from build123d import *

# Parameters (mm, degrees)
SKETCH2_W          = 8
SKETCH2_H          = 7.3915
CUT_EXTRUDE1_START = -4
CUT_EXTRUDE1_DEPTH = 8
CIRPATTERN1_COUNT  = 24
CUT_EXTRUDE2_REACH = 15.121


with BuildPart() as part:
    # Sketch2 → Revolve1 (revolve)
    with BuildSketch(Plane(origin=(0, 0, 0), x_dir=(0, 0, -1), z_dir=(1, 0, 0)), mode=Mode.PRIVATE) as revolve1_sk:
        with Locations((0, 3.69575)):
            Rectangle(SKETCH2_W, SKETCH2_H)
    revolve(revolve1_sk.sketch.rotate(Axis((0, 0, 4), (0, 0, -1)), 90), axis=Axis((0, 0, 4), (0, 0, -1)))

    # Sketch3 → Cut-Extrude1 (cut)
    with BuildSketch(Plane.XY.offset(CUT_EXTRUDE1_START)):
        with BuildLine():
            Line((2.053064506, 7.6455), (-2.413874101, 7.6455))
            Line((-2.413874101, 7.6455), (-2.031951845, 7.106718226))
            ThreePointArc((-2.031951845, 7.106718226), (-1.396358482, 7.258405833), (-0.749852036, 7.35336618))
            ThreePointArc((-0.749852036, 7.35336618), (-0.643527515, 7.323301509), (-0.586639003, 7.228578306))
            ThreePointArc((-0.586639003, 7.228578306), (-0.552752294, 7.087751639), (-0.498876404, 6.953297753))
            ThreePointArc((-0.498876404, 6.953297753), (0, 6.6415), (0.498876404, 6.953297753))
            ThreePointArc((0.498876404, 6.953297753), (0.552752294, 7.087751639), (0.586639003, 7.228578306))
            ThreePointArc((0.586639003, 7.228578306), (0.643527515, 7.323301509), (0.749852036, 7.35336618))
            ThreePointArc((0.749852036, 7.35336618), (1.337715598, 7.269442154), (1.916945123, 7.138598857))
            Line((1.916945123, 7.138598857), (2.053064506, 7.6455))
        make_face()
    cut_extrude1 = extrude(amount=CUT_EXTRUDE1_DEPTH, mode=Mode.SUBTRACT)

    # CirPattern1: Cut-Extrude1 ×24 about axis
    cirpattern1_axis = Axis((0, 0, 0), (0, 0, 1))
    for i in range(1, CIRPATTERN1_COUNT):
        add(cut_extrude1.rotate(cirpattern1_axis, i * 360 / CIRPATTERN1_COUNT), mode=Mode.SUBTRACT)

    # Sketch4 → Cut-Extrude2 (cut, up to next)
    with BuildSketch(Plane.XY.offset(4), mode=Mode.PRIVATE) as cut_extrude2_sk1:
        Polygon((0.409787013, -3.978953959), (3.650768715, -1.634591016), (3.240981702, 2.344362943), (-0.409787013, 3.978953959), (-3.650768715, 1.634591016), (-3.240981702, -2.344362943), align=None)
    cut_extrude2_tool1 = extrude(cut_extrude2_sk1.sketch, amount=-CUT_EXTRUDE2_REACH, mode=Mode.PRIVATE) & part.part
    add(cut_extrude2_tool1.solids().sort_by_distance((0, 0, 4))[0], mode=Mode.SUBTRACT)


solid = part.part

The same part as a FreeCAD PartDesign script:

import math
import FreeCAD as App
import Part
import Sketcher
Q = App.Units.Quantity


def add_polygon(sketch, points):
    """Adds a closed chain of lines whose ends are joined by coincident constraints."""
    first, n = sketch.GeometryCount, len(points)
    for a, b in zip(points, points[1:] + points[:1]):
        sketch.addGeometry(Part.LineSegment(App.Vector(*a, 0), App.Vector(*b, 0)), False)
    for i in range(n):
        sketch.addConstraint(Sketcher.Constraint("Coincident", first + i, 2, first + (i + 1) % n, 1))

doc = App.newDocument("Part")
params = doc.addObject("Spreadsheet::Sheet", "Params")
for row, (alias, value) in enumerate([
    ("sketch1_height", "8 mm"),
    ("revolution_angle", "360 deg"),
    ("sketch2_radius", "1 mm"),
    ("sketch2_radius2", "0.15 mm"),
    ("pocket1_length", "8 mm"),
    ("sketch3_length", "4 mm"),
], start=1):
    params.set(f"A{row}", alias)
    params.set(f"B{row}", "=" + value)
    params.setAlias(f"B{row}", alias)

body = doc.addObject("PartDesign::Body", "Body")

# Sketch on YZ plane
sketch1 = body.newObject("Sketcher::SketchObject", "Sketch")
sketch1.AttachmentSupport = (doc.getObject("YZ_Plane"), [""])
sketch1.MapMode = "FlatFace"
add_polygon(sketch1, [(7.3915, 4), (0, 4), (0, -4), (7.3915, -4)])  # lines 0-3
sketch1.addConstraint([
    Sketcher.Constraint("Horizontal", 0),
    Sketcher.Constraint("Vertical", 1),
    Sketcher.Constraint("Horizontal", 2),
    Sketcher.Constraint("Vertical", 3),
    Sketcher.Constraint("Symmetric", 0, 2, 1, 2, -1, 1),
    Sketcher.Constraint("DistanceY", 1, 2, 1, 1, Q("8 mm")),
    Sketcher.Constraint("DistanceX", 0, 2, 0, 1, Q("7.3915 mm")),
])
sketch1.setExpression("Constraints[9]", "Params.sketch1_height")
revolution = body.newObject("PartDesign::Revolution", "Revolution")
revolution.Profile = sketch1
revolution.ReferenceAxis = (sketch1, ["V_Axis"])
revolution.setExpression("Angle", "Params.revolution_angle")

# Sketch on XY plane
sketch2 = body.newObject("Sketcher::SketchObject", "Sketch001")
sketch2.AttachmentSupport = (doc.getObject("XY_Plane"), [""])
sketch2.MapMode = "FlatFace"
sketch2.AttachmentOffset = App.Placement(App.Vector(0, 0, -4), App.Rotation())
sketch2.addGeometry([
    Part.LineSegment(App.Vector(2.053065, 7.6455, 0), App.Vector(-2.413874, 7.6455, 0)),  # 0
    Part.LineSegment(App.Vector(-2.413874, 7.6455, 0), App.Vector(-2.031952, 7.106718, 0)),  # 1
    Part.ArcOfCircle(Part.Circle(App.Vector(0, 0, 0), App.Vector(0, 0, 1), 7.3915), math.radians(95.822552), math.radians(105.956285)),  # 2
    Part.ArcOfCircle(Part.Circle(App.Vector(-0.734635, 7.20414, 0), App.Vector(0, 0, 1), 0.15), math.radians(9.376523), math.radians(95.822552)),  # 3
    Part.ArcOfCircle(Part.Circle(App.Vector(0.4, 7.3915, 0), App.Vector(0, 0, 1), 1), math.radians(-170.623477), math.radians(-154.010766)),  # 4
    Part.ArcOfCircle(Part.Circle(App.Vector(0, 7.1965, 0), App.Vector(0, 0, 1), 0.555), math.radians(-154.010767), math.radians(-25.989233)),  # 5
    Part.ArcOfCircle(Part.Circle(App.Vector(-0.4, 7.3915, 0), App.Vector(0, 0, 1), 1), math.radians(-25.989234), math.radians(-9.376523)),  # 6
    Part.ArcOfCircle(Part.Circle(App.Vector(0.734635, 7.20414, 0), App.Vector(0, 0, 1), 0.15), math.radians(84.177448), math.radians(170.623477)),  # 7
    Part.ArcOfCircle(Part.Circle(App.Vector(0, 0, 0), App.Vector(0, 0, 1), 7.3915), math.radians(74.968827), math.radians(84.177448)),  # 8
    Part.LineSegment(App.Vector(1.916945, 7.138599, 0), App.Vector(2.053065, 7.6455, 0)),  # 9
], False)
sketch2.addConstraint([
    Sketcher.Constraint("Coincident", 0, 2, 1, 1),
    Sketcher.Constraint("Coincident", 1, 2, 2, 2),
    Sketcher.Constraint("Tangent", 2, 1, 3, 2),
    Sketcher.Constraint("Tangent", 3, 1, 4, 1),
    Sketcher.Constraint("Tangent", 4, 2, 5, 1),
    Sketcher.Constraint("Tangent", 5, 2, 6, 1),
    Sketcher.Constraint("Tangent", 6, 2, 7, 2),
    Sketcher.Constraint("Tangent", 7, 1, 8, 2),
    Sketcher.Constraint("Coincident", 8, 1, 9, 1),
    Sketcher.Constraint("Coincident", 9, 2, 0, 1),
    Sketcher.Constraint("Horizontal", 0),
    Sketcher.Constraint("Coincident", 2, 3, -1, 1),
    Sketcher.Constraint("Coincident", 8, 3, -1, 1),
    Sketcher.Constraint("Equal", 4, 6),
    Sketcher.Constraint("Equal", 3, 7),
    Sketcher.Constraint("Equal", 2, 8),
    Sketcher.Constraint("Symmetric", 4, 3, 6, 3, -2),
    Sketcher.Constraint("Radius", 4, Q("1 mm")),
    Sketcher.Constraint("Radius", 3, Q("0.15 mm")),
    Sketcher.Constraint("Radius", 5, Q("0.555 mm")),
    Sketcher.Constraint("DistanceX", -1, 1, 4, 3, Q("0.4 mm")),
    Sketcher.Constraint("Radius", 2, Q("7.3915 mm")),
    Sketcher.Constraint("DistanceY", 6, 3, 0, 2, Q("0.254 mm")),
    Sketcher.Constraint("DistanceX", 0, 2, 0, 1, Q("4.466939 mm")),
    Sketcher.Constraint("DistanceY", -1, 1, 4, 3, Q("7.3915 mm")),
    Sketcher.Constraint("DistanceY", -1, 1, 8, 1, Q("7.138599 mm")),
    Sketcher.Constraint("DistanceX", 1, 2, 2, 1, Q("1.2821 mm")),
    Sketcher.Constraint("Distance", 9, Q("0.524859 mm")),
])
sketch2.setExpression("Constraints[17]", "Params.sketch2_radius")
sketch2.setExpression("Constraints[18]", "Params.sketch2_radius2")
pocket1 = body.newObject("PartDesign::Pocket", "Pocket")
pocket1.Profile = sketch2
pocket1.setExpression("Length", "Params.pocket1_length")
pocket1.Reversed = True
doc.recompute()

polarpattern = body.newObject("PartDesign::PolarPattern", "PolarPattern")
polarpattern.Originals = [pocket1]
polarpattern.Axis = (doc.getObject("Z_Axis"), [""])
polarpattern.Angle = 360
polarpattern.Occurrences = 24
body.Tip = polarpattern

# Sketch on XY plane
sketch3 = body.newObject("Sketcher::SketchObject", "Sketch002")
sketch3.AttachmentSupport = (doc.getObject("XY_Plane"), [""])
sketch3.MapMode = "FlatFace"
sketch3.AttachmentOffset = App.Placement(App.Vector(0, 0, 4), App.Rotation())
add_polygon(sketch3, [(0.409787, -3.978954), (3.650769, -1.634591), (3.240982, 2.344363), (-0.409787, 3.978954), (-3.650769, 1.634591), (-3.240982, -2.344363)])  # lines 0-5
sketch3.addConstraint([
    Sketcher.Constraint("Symmetric", 0, 2, 3, 2, -1, 1),
    Sketcher.Constraint("Symmetric", 1, 2, 4, 2, -1, 1),
    Sketcher.Constraint("Symmetric", 2, 2, 5, 2, -1, 1),
    Sketcher.Constraint("Equal", 0, 1),
    Sketcher.Constraint("Equal", 1, 2),
    Sketcher.Constraint("Distance", 0, Q("4 mm")),
    Sketcher.Constraint("DistanceX", -1, 1, 0, 2, Q("3.650769 mm")),
    Sketcher.Constraint("DistanceY", 0, 2, -1, 1, Q("1.634591 mm")),
    Sketcher.Constraint("DistanceX", -1, 1, 1, 2, Q("3.240982 mm")),
])
sketch3.setExpression("Constraints[11]", "Params.sketch3_length")
pocket2 = body.newObject("PartDesign::Pocket", "Pocket001")
pocket2.Profile = sketch3
pocket2.Type = "UpToFirst"

doc.recompute()
